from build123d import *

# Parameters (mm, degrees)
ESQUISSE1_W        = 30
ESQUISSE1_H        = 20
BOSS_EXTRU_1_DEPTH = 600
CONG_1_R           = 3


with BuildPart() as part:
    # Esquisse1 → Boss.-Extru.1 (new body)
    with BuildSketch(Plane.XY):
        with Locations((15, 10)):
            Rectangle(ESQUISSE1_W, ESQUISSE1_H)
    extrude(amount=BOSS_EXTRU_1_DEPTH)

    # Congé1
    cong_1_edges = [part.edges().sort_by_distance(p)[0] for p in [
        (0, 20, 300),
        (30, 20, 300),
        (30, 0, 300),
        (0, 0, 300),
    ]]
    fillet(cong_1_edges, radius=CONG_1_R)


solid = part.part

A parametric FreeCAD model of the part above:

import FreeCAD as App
import Part
import Sketcher

V = App.Vector
Q = App.Units.Quantity


def edges_at(feature, points):
    """Names of the edges that pass closest to the given points."""
    edges = feature.Shape.Edges
    near = lambda p: min(range(len(edges)), key=lambda i: edges[i].distToShape(Part.Vertex(*p))[0])
    return sorted({f"Edge{near(p) + 1}" for p in points})

doc = App.newDocument("Part")
params = doc.addObject("Spreadsheet::Sheet", "Params")
for row, (alias, value) in enumerate([
    ("sketch1_width", "30 mm"),
    ("sketch1_height", "20 mm"),
    ("pad1_length", "600 mm"),
    ("fillet_radius", "3 mm"),
], start=1):
    params.set(f"A{row}", alias)
    params.set(f"B{row}", "=" + value)
    params.setAlias(f"B{row}", alias)

body = doc.addObject("PartDesign::Body", "Body")

# Sketch on XY plane
sketch1 = body.newObject("Sketcher::SketchObject", "Sketch")
sketch1.AttachmentSupport = (doc.getObject("XY_Plane"), [""])
sketch1.MapMode = "FlatFace"
sketch1.addGeometry([
    Part.LineSegment(V(0, 20, 0), V(0, 0, 0)),
    Part.LineSegment(V(0, 0, 0), V(30, 0, 0)),
    Part.LineSegment(V(30, 0, 0), V(30, 20, 0)),
    Part.LineSegment(V(30, 20, 0), V(0, 20, 0)),
], False)
sketch1.addConstraint([
    Sketcher.Constraint("Coincident", 0, 2, 1, 1),
    Sketcher.Constraint("Coincident", 1, 2, 2, 1),
    Sketcher.Constraint("Coincident", 2, 2, 3, 1),
    Sketcher.Constraint("Coincident", 3, 2, 0, 1),
    Sketcher.Constraint("Vertical", 0),
    Sketcher.Constraint("Horizontal", 1),
    Sketcher.Constraint("Vertical", 2),
    Sketcher.Constraint("Horizontal", 3),
    Sketcher.Constraint("Coincident", 0, 2, -1, 1),
    Sketcher.Constraint("DistanceX", 1, 1, 1, 2, Q("30 mm")),
    Sketcher.Constraint("DistanceY", 0, 2, 0, 1, Q("20 mm")),
])
sketch1.setExpression("Constraints[9]", "Params.sketch1_width")
sketch1.setExpression("Constraints[10]", "Params.sketch1_height")
pad1 = body.newObject("PartDesign::Pad", "Pad")
pad1.Profile = sketch1
pad1.setExpression("Length", "Params.pad1_length")
doc.recompute()

fillet = body.newObject("PartDesign::Fillet", "Fillet")
fillet.Base = (pad1, edges_at(pad1, [
    (0, 20, 300),
    (30, 20, 300),
    (30, 0, 300),
    (0, 0, 300),
]))
fillet.setExpression("Radius", "Params.fillet_radius")

doc.recompute()
